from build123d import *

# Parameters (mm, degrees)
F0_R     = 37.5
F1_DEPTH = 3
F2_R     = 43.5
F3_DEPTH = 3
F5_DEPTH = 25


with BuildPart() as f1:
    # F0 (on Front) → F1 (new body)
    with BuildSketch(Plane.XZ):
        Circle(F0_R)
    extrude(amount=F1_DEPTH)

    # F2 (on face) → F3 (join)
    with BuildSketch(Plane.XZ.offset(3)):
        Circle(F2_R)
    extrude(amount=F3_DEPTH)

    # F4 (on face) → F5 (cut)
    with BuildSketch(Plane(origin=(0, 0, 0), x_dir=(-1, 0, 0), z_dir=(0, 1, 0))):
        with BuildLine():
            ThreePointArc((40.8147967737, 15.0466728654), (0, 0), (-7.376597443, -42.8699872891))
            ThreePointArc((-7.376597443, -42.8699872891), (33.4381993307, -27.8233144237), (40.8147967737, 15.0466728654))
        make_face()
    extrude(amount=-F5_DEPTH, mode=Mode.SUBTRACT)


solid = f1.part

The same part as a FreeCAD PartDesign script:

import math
import FreeCAD as App
import Part
import Sketcher
from FreeCAD import Vector

doc = App.newDocument("Part")
body = doc.addObject("PartDesign::Body", "Body")

# Sketch on XZ plane
sketch1 = body.newObject("Sketcher::SketchObject", "Sketch")
sketch1.AttachmentSupport = (doc.getObject("XZ_Plane"), [""])
sketch1.MapMode = "FlatFace"
sketch1.addGeometry(Part.Circle(Vector(0, 0, 0), Vector(0, 0, 1), 38), False)
sketch1.addConstraint([
    Sketcher.Constraint("Coincident", 0, 3, -1, 1),
    Sketcher.Constraint("Diameter", 0, 75.0),
])
pad1 = body.newObject("PartDesign::Pad", "Pad")
pad1.Profile = sketch1
pad1.Length = 3

# Sketch on XZ plane
sketch2 = body.newObject("Sketcher::SketchObject", "Sketch001")
sketch2.AttachmentSupport = (doc.getObject("XZ_Plane"), [""])
sketch2.MapMode = "FlatFace"
sketch2.AttachmentOffset = App.Placement(Vector(0, 0, 3), App.Rotation())
sketch2.addGeometry(Part.Circle(Vector(0, 0, 0), Vector(0, 0, 1), 44), False)
sketch2.addConstraint([
    Sketcher.Constraint("Coincident", 0, 3, -1, 1),
    Sketcher.Constraint("Diameter", 0, 87.0),
])
pad2 = body.newObject("PartDesign::Pad", "Pad001")
pad2.Profile = sketch2
pad2.Length = 3

# Sketch on XZ plane
sketch3 = body.newObject("Sketcher::SketchObject", "Sketch002")
sketch3.AttachmentSupport = (doc.getObject("XZ_Plane"), [""])
sketch3.MapMode = "FlatFace"
sketch3.addGeometry([
    Part.ArcOfCircle(Part.Circle(Vector(-33, -28, 0), Vector(0, 0, 1), 44), math.radians(-20), math.radians(100)),
    Part.ArcOfCircle(Part.Circle(Vector(0, 0, 0), Vector(0, 0, 1), 44), math.radians(160), math.radians(280)),
], False)
sketch3.addConstraint([
    Sketcher.Constraint("Coincident", 0, 1, 1, 2),
    Sketcher.Constraint("Coincident", 1, 1, 0, 2),
    Sketcher.Constraint("Coincident", 1, 3, -1, 1),
    Sketcher.Constraint("Equal", 0, 1),
    Sketcher.Constraint("Radius", 0, 43.5),
    Sketcher.Constraint("DistanceX", 0, 3, -1, 1, 33.438199),
    Sketcher.Constraint("DistanceY", 0, 1, 1, 1, 57.91666),
])
pocket1 = body.newObject("PartDesign::Pocket", "Pocket")
pocket1.Profile = sketch3
pocket1.Length = 25
pocket1.Reversed = True

doc.recompute()
